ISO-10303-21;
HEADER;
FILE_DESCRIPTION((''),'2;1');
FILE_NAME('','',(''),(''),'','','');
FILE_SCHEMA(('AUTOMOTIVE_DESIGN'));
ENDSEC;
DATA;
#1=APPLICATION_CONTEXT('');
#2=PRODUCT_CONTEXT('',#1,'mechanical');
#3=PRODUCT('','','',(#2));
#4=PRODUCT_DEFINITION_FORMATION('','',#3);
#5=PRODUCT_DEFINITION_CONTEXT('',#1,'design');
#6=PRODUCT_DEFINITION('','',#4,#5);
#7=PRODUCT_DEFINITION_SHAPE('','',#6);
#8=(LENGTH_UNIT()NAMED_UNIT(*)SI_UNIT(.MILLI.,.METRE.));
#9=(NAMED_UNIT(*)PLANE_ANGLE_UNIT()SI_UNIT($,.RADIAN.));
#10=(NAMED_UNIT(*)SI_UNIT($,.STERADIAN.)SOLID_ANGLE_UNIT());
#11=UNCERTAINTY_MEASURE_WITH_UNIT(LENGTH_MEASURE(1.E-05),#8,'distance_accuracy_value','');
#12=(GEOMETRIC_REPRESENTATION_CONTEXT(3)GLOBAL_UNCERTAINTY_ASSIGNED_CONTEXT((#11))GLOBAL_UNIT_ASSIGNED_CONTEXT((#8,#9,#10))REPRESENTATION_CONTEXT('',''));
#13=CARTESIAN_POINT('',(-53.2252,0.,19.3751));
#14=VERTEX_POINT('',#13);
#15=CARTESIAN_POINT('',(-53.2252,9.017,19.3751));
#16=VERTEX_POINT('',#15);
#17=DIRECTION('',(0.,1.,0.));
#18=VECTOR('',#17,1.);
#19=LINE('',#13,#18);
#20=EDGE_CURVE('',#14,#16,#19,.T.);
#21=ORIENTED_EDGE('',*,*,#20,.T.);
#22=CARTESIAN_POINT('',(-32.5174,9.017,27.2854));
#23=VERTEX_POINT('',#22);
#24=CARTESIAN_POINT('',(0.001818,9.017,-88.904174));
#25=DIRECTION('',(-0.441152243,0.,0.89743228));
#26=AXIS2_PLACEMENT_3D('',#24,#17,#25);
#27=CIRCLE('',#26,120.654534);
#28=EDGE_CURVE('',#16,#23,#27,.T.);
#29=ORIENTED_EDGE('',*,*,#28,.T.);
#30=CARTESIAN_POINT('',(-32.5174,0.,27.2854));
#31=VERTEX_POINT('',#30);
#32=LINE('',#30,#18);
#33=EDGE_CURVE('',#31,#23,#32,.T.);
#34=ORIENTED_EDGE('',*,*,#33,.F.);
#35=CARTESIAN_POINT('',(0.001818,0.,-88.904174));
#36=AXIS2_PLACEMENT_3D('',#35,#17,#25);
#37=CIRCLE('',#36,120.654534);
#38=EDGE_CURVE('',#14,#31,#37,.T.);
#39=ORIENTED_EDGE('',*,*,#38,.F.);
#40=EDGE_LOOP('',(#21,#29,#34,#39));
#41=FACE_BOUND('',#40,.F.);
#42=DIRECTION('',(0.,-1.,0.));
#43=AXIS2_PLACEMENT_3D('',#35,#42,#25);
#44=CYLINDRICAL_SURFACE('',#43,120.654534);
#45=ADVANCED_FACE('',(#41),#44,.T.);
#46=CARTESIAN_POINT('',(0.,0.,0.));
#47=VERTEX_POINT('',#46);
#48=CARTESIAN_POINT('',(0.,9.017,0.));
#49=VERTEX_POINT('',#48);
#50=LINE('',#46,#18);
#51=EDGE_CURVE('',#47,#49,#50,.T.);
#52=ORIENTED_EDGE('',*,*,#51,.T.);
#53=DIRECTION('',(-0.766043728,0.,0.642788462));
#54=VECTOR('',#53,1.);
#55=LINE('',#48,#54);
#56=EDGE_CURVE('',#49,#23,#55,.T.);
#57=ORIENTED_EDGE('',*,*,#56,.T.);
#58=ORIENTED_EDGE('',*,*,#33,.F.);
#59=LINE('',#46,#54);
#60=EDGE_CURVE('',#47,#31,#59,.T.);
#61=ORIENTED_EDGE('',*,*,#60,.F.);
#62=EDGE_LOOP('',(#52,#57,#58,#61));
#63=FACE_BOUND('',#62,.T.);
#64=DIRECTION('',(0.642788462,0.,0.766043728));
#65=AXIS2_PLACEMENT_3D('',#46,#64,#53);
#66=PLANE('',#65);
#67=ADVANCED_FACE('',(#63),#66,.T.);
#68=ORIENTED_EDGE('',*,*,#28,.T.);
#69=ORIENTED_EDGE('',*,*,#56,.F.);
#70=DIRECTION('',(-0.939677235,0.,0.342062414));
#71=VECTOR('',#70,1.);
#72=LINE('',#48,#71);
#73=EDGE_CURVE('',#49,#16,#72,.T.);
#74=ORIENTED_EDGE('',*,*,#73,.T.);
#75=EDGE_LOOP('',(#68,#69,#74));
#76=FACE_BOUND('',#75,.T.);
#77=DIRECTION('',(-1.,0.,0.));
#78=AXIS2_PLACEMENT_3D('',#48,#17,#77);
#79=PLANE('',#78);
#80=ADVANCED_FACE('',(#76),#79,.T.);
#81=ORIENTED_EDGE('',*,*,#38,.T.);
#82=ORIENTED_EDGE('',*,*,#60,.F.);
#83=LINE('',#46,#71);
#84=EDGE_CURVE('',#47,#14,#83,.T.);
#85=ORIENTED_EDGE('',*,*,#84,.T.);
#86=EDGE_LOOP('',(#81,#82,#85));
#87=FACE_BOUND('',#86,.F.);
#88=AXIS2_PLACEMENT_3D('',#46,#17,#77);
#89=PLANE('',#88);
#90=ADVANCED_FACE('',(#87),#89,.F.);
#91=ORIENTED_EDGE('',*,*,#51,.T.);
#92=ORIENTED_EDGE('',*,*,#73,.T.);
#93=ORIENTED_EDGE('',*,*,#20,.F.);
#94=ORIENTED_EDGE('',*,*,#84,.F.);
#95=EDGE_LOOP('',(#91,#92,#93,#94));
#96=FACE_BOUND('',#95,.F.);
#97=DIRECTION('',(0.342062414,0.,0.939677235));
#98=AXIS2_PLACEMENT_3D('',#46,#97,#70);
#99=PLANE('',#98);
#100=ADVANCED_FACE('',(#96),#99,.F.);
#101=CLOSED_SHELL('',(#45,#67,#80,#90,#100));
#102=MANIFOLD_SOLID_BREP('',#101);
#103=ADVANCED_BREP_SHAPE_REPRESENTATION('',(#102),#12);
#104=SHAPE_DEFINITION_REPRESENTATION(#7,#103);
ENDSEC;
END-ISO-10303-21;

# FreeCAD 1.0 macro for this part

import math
import FreeCAD as App
import Part
import Sketcher
from FreeCAD import Vector
Q = App.Units.Quantity

doc = App.newDocument("Part")
body = doc.addObject("PartDesign::Body", "Body")

# Sketch on XZ plane
sketch1 = doc.addObject("Sketcher::SketchObject", "Sketch")
body.addObject(sketch1)
sketch1.AttachmentSupport = (doc.XZ_Plane, [""])
sketch1.MapMode = "FlatFace"
sketch1.addGeometry([
    Part.LineSegment(Vector(0, 0, 0), Vector(-53, 19, 0)),
    Part.ArcOfCircle(Part.Circle(Vector(0, -89, 0), Vector(0, 0, 1), 121), math.radians(105.64), math.radians(116.18)),
    Part.LineSegment(Vector(-33, 27, 0), Vector(0, 0, 0)),
], False)
sketch1.addConstraint([
    Sketcher.Constraint("Coincident", 0, 2, 1, 2),
    Sketcher.Constraint("Coincident", 1, 1, 2, 1),
    Sketcher.Constraint("Coincident", 2, 2, 0, 1),
    Sketcher.Constraint("Coincident", 2, 2, -1, 1),
    Sketcher.Constraint("Distance", 0, Q("2.23 in")),
    Sketcher.Constraint("Angle", 2, Q("-40 deg")),
    Sketcher.Constraint("Distance", 2, Q("1.6712 in")),
    Sketcher.Constraint("Radius", 1, 120.6545),
    Sketcher.Constraint("DistanceY", -1, 1, 0, 2, Q("0.7628 in")),
])
pad1 = doc.addObject("PartDesign::Pad", "Pad")
body.addObject(pad1)
pad1.Profile = sketch1
pad1.Length = Q("0.355 in")
pad1.Reversed = True

doc.recompute()
